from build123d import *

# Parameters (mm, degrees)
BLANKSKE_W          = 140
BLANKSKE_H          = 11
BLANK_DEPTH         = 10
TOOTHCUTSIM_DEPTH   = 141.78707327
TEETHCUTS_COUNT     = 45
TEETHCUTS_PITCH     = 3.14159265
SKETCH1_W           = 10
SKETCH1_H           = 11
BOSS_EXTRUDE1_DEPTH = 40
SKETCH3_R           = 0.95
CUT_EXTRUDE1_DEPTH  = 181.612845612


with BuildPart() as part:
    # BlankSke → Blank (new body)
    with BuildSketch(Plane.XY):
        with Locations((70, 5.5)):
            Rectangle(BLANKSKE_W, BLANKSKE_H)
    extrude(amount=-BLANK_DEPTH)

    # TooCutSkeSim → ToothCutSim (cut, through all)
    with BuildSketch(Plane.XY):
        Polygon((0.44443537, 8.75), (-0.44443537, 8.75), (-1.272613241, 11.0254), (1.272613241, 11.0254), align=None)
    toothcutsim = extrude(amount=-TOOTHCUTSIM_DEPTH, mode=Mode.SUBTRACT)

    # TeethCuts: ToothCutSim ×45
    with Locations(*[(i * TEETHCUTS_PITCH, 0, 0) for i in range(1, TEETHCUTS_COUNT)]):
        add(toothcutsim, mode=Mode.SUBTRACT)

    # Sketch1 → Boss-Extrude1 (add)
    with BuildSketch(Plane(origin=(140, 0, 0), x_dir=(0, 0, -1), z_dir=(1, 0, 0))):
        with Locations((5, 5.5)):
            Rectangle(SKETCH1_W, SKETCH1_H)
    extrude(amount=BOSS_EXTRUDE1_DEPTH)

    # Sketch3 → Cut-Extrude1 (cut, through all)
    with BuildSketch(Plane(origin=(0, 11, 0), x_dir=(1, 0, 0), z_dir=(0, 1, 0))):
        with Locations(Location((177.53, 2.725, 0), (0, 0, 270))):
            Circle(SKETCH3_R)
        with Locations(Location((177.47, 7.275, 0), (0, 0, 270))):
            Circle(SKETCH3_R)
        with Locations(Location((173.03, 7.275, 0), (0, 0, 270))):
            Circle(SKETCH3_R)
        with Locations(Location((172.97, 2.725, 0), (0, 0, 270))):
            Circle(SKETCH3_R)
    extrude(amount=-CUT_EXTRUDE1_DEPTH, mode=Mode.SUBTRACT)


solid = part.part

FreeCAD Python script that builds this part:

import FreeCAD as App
import Part
import Sketcher

V = App.Vector
Q = App.Units.Quantity

doc = App.newDocument("Part")
params = doc.addObject("Spreadsheet::Sheet", "Params")
for row, (alias, value) in enumerate([
    ("sketch1_width", "140 mm"),
    ("sketch1_height", "11 mm"),
    ("pad1_length", "10 mm"),
    ("linearpattern_pitch", "3.141593 mm"),
    ("sketch3_width", "11 mm"),
    ("sketch3_height", "10 mm"),
    ("pad2_length", "40 mm"),
    ("sketch4_diameter", "1.9 mm"),
], start=1):
    params.set(f"A{row}", alias)
    params.set(f"B{row}", "=" + value)
    params.setAlias(f"B{row}", alias)

body = doc.addObject("PartDesign::Body", "Body")

# Sketch on XY plane
sketch1 = body.newObject("Sketcher::SketchObject", "Sketch")
sketch1.AttachmentSupport = (doc.getObject("XY_Plane"), [""])
sketch1.MapMode = "FlatFace"
sketch1.addGeometry([
    Part.LineSegment(V(0, 11, 0), V(0, 0, 0)),
    Part.LineSegment(V(0, 0, 0), V(140, 0, 0)),
    Part.LineSegment(V(140, 0, 0), V(140, 11, 0)),
    Part.LineSegment(V(140, 11, 0), V(0, 11, 0)),
], False)
sketch1.addConstraint([
    Sketcher.Constraint("Coincident", 0, 2, 1, 1),
    Sketcher.Constraint("Coincident", 1, 2, 2, 1),
    Sketcher.Constraint("Coincident", 2, 2, 3, 1),
    Sketcher.Constraint("Coincident", 3, 2, 0, 1),
    Sketcher.Constraint("Vertical", 0),
    Sketcher.Constraint("Horizontal", 1),
    Sketcher.Constraint("Vertical", 2),
    Sketcher.Constraint("Horizontal", 3),
    Sketcher.Constraint("Coincident", 0, 2, -1, 1),
    Sketcher.Constraint("DistanceX", 1, 1, 1, 2, 140.0),
    Sketcher.Constraint("DistanceY", 0, 2, 0, 1, 11.0),
])
sketch1.setExpression("Constraints[9]", "Params.sketch1_width")
sketch1.setExpression("Constraints[10]", "Params.sketch1_height")
pad1 = body.newObject("PartDesign::Pad", "Pad")
pad1.Profile = sketch1
pad1.setExpression("Length", "Params.pad1_length")
pad1.Reversed = True

# Sketch on XY plane
sketch2 = body.newObject("Sketcher::SketchObject", "Sketch001")
sketch2.AttachmentSupport = (doc.getObject("XY_Plane"), [""])
sketch2.MapMode = "FlatFace"
sketch2.addGeometry([
    Part.LineSegment(V(-0.4, 8.8, 0), V(0.4, 8.8, 0)),
    Part.LineSegment(V(0.4, 8.8, 0), V(1.3, 11, 0)),
    Part.LineSegment(V(1.3, 11, 0), V(-1.3, 11, 0)),
    Part.LineSegment(V(-1.3, 11, 0), V(-0.4, 8.8, 0)),
], False)
sketch2.addConstraint([
    Sketcher.Constraint("Coincident", 0, 2, 1, 1),
    Sketcher.Constraint("Coincident", 1, 2, 2, 1),
    Sketcher.Constraint("Coincident", 2, 2, 3, 1),
    Sketcher.Constraint("Coincident", 3, 2, 0, 1),
    Sketcher.Constraint("Horizontal", 0),
    Sketcher.Constraint("Horizontal", 2),
    Sketcher.Constraint("Equal", 1, 3),
    Sketcher.Constraint("Angle", 1, Q("70 deg")),
    Sketcher.Constraint("DistanceY", -1, 1, 0, 2, 8.75),
    Sketcher.Constraint("DistanceX", 0, 1, 0, 2, 0.888871),
    Sketcher.Constraint("DistanceY", -1, 1, 1, 2, 11.0254),
    Sketcher.Constraint("DistanceX", -1, 1, 0, 2, 0.444435),
])
pocket1 = body.newObject("PartDesign::Pocket", "Pocket")
pocket1.Profile = sketch2
pocket1.Type = "ThroughAll"
doc.recompute()

linearpattern = body.newObject("PartDesign::LinearPattern", "LinearPattern")
linearpattern.Originals = [pocket1]
linearpattern.Direction = (doc.getObject("X_Axis"), [""])
linearpattern.Mode = "offset"
linearpattern.setExpression("Offset", "Params.linearpattern_pitch")
linearpattern.Occurrences = 45
body.Tip = linearpattern

# Sketch on YZ plane
sketch3 = body.newObject("Sketcher::SketchObject", "Sketch002")
sketch3.AttachmentSupport = (doc.getObject("YZ_Plane"), [""])
sketch3.MapMode = "FlatFace"
sketch3.AttachmentOffset = App.Placement(V(0, 0, 140), App.Rotation())
sketch3.addGeometry([
    Part.LineSegment(V(11, 0, 0), V(0, 0, 0)),
    Part.LineSegment(V(0, 0, 0), V(0, -10, 0)),
    Part.LineSegment(V(0, -10, 0), V(11, -10, 0)),
    Part.LineSegment(V(11, -10, 0), V(11, 0, 0)),
], False)
sketch3.addConstraint([
    Sketcher.Constraint("Coincident", 0, 2, 1, 1),
    Sketcher.Constraint("Coincident", 1, 2, 2, 1),
    Sketcher.Constraint("Coincident", 2, 2, 3, 1),
    Sketcher.Constraint("Coincident", 3, 2, 0, 1),
    Sketcher.Constraint("Horizontal", 0),
    Sketcher.Constraint("Vertical", 1),
    Sketcher.Constraint("Horizontal", 2),
    Sketcher.Constraint("Vertical", 3),
    Sketcher.Constraint("Coincident", 0, 2, -1, 1),
    Sketcher.Constraint("DistanceX", 0, 2, 0, 1, 11.0),
    Sketcher.Constraint("DistanceY", 1, 2, 1, 1, 10.0),
])
sketch3.setExpression("Constraints[9]", "Params.sketch3_width")
sketch3.setExpression("Constraints[10]", "Params.sketch3_height")
pad2 = body.newObject("PartDesign::Pad", "Pad001")
pad2.Profile = sketch3
pad2.setExpression("Length", "Params.pad2_length")

# Sketch on XZ plane
sketch4 = body.newObject("Sketcher::SketchObject", "Sketch003")
sketch4.AttachmentSupport = (doc.getObject("XZ_Plane"), [""])
sketch4.MapMode = "FlatFace"
sketch4.AttachmentOffset = App.Placement(V(0, 0, -11), App.Rotation())
sketch4.addGeometry([
    Part.Circle(V(177.5, -2.7, 0), V(0, 0, 1), 0.9),
    Part.Circle(V(177.5, -7.3, 0), V(0, 0, 1), 0.9),
    Part.Circle(V(173, -7.3, 0), V(0, 0, 1), 0.9),
    Part.Circle(V(173, -2.7, 0), V(0, 0, 1), 0.9),
], False)
sketch4.addConstraint([
    Sketcher.Constraint("Equal", 0, 1),
    Sketcher.Constraint("Equal", 1, 2),
    Sketcher.Constraint("Equal", 2, 3),
    Sketcher.Constraint("Horizontal", 1, 3, 2, 3),
    Sketcher.Constraint("Horizontal", 0, 3, 3, 3),
    Sketcher.Constraint("Diameter", 0, 1.9),
    Sketcher.Constraint("DistanceX", 2, 3, 0, 3, 4.5),
    Sketcher.Constraint("DistanceX", 3, 3, 1, 3, 4.5),
    Sketcher.Constraint("DistanceX", -1, 1, 0, 3, 177.53),
    Sketcher.Constraint("DistanceX", -1, 1, 1, 3, 177.47),
    Sketcher.Constraint("DistanceY", 1, 3, 0, 3, 4.55),
    Sketcher.Constraint("DistanceY", 0, 3, -1, 1, 2.725),
])
sketch4.setExpression("Constraints[5]", "Params.sketch4_diameter")
pocket2 = body.newObject("PartDesign::Pocket", "Pocket001")
pocket2.Profile = sketch4
pocket2.Type = "ThroughAll"
pocket2.Reversed = True

doc.recompute()
